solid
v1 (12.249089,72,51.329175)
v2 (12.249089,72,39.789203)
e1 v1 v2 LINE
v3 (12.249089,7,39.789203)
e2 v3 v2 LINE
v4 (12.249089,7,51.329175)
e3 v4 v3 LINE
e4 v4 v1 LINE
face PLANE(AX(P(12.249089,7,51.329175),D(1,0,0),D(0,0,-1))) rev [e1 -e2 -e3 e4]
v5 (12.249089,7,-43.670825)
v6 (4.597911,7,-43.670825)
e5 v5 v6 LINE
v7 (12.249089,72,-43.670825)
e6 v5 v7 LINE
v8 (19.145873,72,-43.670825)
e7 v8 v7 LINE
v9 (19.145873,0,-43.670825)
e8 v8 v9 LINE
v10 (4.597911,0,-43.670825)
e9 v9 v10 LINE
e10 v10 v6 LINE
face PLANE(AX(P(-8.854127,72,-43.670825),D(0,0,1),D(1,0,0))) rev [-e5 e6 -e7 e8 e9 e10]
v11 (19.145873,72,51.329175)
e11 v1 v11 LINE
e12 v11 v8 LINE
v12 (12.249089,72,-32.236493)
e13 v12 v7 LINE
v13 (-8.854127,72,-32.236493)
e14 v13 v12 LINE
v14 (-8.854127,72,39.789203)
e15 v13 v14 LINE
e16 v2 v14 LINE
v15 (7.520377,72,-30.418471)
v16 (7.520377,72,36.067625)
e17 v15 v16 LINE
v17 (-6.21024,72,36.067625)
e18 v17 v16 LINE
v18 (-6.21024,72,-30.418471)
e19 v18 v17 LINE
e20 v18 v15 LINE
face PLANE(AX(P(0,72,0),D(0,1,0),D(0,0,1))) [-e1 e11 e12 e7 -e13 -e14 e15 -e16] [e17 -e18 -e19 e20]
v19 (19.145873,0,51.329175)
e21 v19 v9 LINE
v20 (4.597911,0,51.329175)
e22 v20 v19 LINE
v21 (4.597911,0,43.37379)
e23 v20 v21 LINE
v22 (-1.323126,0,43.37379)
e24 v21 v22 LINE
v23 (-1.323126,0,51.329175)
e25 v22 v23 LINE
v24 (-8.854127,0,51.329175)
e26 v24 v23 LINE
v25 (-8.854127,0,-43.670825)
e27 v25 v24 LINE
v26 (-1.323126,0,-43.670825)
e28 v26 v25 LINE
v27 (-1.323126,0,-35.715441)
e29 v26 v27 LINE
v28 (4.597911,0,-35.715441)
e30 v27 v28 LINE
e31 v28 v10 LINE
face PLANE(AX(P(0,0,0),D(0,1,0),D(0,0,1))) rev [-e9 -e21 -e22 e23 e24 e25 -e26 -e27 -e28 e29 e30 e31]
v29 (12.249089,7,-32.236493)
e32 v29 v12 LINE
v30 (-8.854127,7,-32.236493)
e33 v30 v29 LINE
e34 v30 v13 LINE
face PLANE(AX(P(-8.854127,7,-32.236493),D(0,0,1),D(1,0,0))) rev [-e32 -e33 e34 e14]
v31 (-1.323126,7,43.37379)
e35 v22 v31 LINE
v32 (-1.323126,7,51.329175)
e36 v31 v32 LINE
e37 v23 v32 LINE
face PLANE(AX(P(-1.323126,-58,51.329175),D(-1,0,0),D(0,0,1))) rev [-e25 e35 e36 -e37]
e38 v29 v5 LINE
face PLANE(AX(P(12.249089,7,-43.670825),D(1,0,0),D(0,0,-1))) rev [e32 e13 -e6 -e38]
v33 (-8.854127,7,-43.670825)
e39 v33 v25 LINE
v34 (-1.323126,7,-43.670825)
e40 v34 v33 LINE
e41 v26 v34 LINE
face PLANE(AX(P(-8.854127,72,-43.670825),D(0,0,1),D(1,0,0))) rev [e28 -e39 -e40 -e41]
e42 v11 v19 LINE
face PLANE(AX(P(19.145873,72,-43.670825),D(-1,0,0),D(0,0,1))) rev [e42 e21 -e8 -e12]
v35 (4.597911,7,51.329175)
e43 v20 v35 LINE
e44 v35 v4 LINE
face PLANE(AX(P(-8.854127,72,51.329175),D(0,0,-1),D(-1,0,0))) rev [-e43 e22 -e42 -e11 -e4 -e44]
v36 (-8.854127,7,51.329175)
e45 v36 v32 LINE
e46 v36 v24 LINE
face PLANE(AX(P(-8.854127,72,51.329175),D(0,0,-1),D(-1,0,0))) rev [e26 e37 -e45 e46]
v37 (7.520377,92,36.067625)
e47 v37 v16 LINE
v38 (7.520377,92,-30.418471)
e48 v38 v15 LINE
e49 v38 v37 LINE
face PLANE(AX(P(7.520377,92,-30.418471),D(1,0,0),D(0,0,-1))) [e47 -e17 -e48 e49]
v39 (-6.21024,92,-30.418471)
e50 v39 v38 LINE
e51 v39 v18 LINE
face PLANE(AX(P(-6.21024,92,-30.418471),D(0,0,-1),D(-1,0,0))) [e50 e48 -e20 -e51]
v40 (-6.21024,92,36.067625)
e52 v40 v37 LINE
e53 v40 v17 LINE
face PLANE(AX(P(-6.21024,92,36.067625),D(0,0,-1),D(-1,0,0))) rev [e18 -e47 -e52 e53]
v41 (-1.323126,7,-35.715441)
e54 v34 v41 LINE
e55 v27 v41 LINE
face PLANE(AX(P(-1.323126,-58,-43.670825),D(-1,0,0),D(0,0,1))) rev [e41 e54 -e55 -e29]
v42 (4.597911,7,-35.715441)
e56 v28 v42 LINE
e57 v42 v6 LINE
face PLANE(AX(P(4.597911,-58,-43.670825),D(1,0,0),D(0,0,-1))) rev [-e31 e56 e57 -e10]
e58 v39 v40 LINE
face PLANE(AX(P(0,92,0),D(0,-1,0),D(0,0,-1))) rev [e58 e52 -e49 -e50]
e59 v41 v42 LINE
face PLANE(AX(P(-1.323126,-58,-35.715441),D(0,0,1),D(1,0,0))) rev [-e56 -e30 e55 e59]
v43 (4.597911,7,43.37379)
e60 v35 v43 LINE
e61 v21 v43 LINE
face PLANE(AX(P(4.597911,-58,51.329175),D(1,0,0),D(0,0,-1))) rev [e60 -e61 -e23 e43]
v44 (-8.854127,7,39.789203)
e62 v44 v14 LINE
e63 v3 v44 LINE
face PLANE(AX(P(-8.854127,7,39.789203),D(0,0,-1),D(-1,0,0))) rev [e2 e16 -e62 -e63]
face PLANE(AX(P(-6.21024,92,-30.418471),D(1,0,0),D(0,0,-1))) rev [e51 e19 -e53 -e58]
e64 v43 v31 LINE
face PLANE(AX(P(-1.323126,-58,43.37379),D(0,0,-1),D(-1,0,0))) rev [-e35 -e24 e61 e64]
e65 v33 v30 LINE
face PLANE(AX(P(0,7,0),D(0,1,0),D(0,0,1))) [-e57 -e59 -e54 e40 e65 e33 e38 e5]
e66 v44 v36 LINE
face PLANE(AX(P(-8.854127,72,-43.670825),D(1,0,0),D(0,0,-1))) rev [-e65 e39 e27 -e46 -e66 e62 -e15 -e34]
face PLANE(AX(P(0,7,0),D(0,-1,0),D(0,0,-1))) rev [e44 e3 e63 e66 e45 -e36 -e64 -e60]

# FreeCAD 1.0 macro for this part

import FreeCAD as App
import Part
import Sketcher

V = App.Vector


def add_polygon(sketch, points):
    """Adds a closed chain of lines whose ends are joined by coincident constraints."""
    first, n = sketch.GeometryCount, len(points)
    for a, b in zip(points, points[1:] + points[:1]):
        sketch.addGeometry(Part.LineSegment(App.Vector(*a, 0), App.Vector(*b, 0)), False)
    for i in range(n):
        sketch.addConstraint(Sketcher.Constraint("Coincident", first + i, 2, first + (i + 1) % n, 1))

doc = App.newDocument("Part")
body = doc.addObject("PartDesign::Body", "Body")

# Sketch on XZ plane
sketch1 = doc.addObject("Sketcher::SketchObject", "Sketch")
body.addObject(sketch1)
sketch1.AttachmentSupport = (doc.XZ_Plane, [""])
sketch1.MapMode = "FlatFace"
add_polygon(sketch1, [(-9, -44), (-9, 51), (19, 51), (19, -44)])  # lines 0-3
sketch1.addConstraint([
    Sketcher.Constraint("Vertical", 0),
    Sketcher.Constraint("Horizontal", 1),
    Sketcher.Constraint("Vertical", 2),
    Sketcher.Constraint("Horizontal", 3),
    Sketcher.Constraint("DistanceX", 1, 1, 1, 2, 28.0),
    Sketcher.Constraint("DistanceY", 0, 1, 0, 2, 95.0),
    Sketcher.Constraint("DistanceX", 0, 2, -1, 1, 8.854127),
    Sketcher.Constraint("DistanceY", -1, 1, 0, 2, 51.329175),
])
pad1 = doc.addObject("PartDesign::Pad", "Pad")
body.addObject(pad1)
pad1.Profile = sketch1
pad1.Length = 72
pad1.Reversed = True

# Sketch on XZ plane
sketch2 = doc.addObject("Sketcher::SketchObject", "Sketch001")
body.addObject(sketch2)
sketch2.AttachmentSupport = (doc.XZ_Plane, [""])
sketch2.MapMode = "FlatFace"
sketch2.AttachmentOffset = App.Placement(V(0, 0, -72), App.Rotation())
add_polygon(sketch2, [(-6, -30), (-6, 36), (8, 36), (8, -30)])  # lines 0-3
sketch2.addConstraint([
    Sketcher.Constraint("Vertical", 0),
    Sketcher.Constraint("Horizontal", 1),
    Sketcher.Constraint("Vertical", 2),
    Sketcher.Constraint("Horizontal", 3),
    Sketcher.Constraint("DistanceX", 1, 1, 1, 2, 13.730617),
    Sketcher.Constraint("DistanceY", 0, 1, 0, 2, 66.486097),
    Sketcher.Constraint("DistanceX", 0, 2, -1, 1, 6.21024),
    Sketcher.Constraint("DistanceY", 2, 2, -1, 1, 30.418471),
])
pad2 = doc.addObject("PartDesign::Pad", "Pad001")
body.addObject(pad2)
pad2.Profile = sketch2
pad2.Length = 20
pad2.Reversed = True

# Sketch on XZ plane
sketch3 = doc.addObject("Sketcher::SketchObject", "Sketch002")
body.addObject(sketch3)
sketch3.AttachmentSupport = (doc.XZ_Plane, [""])
sketch3.MapMode = "FlatFace"
sketch3.AttachmentOffset = App.Placement(V(0, 0, -72), App.Rotation())
add_polygon(sketch3, [(-9, 40), (-9, 51), (12, 51), (12, 40)])  # lines 0-3
add_polygon(sketch3, [(-9, -44), (-9, -32), (12, -32), (12, -44)])  # lines 4-7
sketch3.addConstraint([
    Sketcher.Constraint("Vertical", 0),
    Sketcher.Constraint("Horizontal", 1),
    Sketcher.Constraint("Vertical", 2),
    Sketcher.Constraint("Horizontal", 3),
    Sketcher.Constraint("Vertical", 4),
    Sketcher.Constraint("Horizontal", 5),
    Sketcher.Constraint("Vertical", 6),
    Sketcher.Constraint("Horizontal", 7),
    Sketcher.Constraint("Vertical", 3, 2, 4, 2),
    Sketcher.Constraint("Vertical", 2, 2, 5, 2),
    Sketcher.Constraint("DistanceY", 6, 2, 1, 2, 95.0),
    Sketcher.Constraint("DistanceY", 0, 1, 0, 2, 11.539972),
    Sketcher.Constraint("DistanceX", 1, 1, 1, 2, 21.103215),
    Sketcher.Constraint("DistanceY", 4, 1, 4, 2, 11.434333),
    Sketcher.Constraint("DistanceX", -1, 1, 1, 2, 12.249089),
    Sketcher.Constraint("DistanceY", -1, 1, 0, 2, 51.329175),
])
pocket1 = doc.addObject("PartDesign::Pocket", "Pocket")
body.addObject(pocket1)
pocket1.Profile = sketch3
pocket1.Length = 65
pocket1.Reversed = True

# Sketch on XZ plane
sketch4 = doc.addObject("Sketcher::SketchObject", "Sketch003")
body.addObject(sketch4)
sketch4.AttachmentSupport = (doc.XZ_Plane, [""])
sketch4.MapMode = "FlatFace"
sketch4.AttachmentOffset = App.Placement(V(0, 0, -7), App.Rotation())
add_polygon(sketch4, [(-1, 43), (-1, 51), (5, 51), (5, 43)])  # lines 0-3
add_polygon(sketch4, [(-1, -44), (-1, -36), (5, -36), (5, -44)])  # lines 4-7
sketch4.addConstraint([
    Sketcher.Constraint("Vertical", 0),
    Sketcher.Constraint("Horizontal", 1),
    Sketcher.Constraint("Vertical", 2),
    Sketcher.Constraint("Horizontal", 3),
    Sketcher.Constraint("Vertical", 4),
    Sketcher.Constraint("Horizontal", 5),
    Sketcher.Constraint("Vertical", 6),
    Sketcher.Constraint("Horizontal", 7),
    Sketcher.Constraint("Vertical", 3, 2, 4, 2),
    Sketcher.Constraint("Vertical", 2, 2, 5, 2),
    Sketcher.Constraint("Equal", 2, 4),
    Sketcher.Constraint("DistanceY", 6, 2, 1, 2, 95.0),
    Sketcher.Constraint("DistanceX", 1, 1, 1, 2, 5.921037),
    Sketcher.Constraint("DistanceY", 0, 1, 0, 2, 7.955385),
    Sketcher.Constraint("DistanceX", -1, 1, 1, 2, 4.597911),
    Sketcher.Constraint("DistanceY", -1, 1, 2, 2, 43.37379),
])
pocket2 = doc.addObject("PartDesign::Pocket", "Pocket001")
body.addObject(pocket2)
pocket2.Profile = sketch4
pocket2.Length = 65
pocket2.Reversed = True

doc.recompute()
